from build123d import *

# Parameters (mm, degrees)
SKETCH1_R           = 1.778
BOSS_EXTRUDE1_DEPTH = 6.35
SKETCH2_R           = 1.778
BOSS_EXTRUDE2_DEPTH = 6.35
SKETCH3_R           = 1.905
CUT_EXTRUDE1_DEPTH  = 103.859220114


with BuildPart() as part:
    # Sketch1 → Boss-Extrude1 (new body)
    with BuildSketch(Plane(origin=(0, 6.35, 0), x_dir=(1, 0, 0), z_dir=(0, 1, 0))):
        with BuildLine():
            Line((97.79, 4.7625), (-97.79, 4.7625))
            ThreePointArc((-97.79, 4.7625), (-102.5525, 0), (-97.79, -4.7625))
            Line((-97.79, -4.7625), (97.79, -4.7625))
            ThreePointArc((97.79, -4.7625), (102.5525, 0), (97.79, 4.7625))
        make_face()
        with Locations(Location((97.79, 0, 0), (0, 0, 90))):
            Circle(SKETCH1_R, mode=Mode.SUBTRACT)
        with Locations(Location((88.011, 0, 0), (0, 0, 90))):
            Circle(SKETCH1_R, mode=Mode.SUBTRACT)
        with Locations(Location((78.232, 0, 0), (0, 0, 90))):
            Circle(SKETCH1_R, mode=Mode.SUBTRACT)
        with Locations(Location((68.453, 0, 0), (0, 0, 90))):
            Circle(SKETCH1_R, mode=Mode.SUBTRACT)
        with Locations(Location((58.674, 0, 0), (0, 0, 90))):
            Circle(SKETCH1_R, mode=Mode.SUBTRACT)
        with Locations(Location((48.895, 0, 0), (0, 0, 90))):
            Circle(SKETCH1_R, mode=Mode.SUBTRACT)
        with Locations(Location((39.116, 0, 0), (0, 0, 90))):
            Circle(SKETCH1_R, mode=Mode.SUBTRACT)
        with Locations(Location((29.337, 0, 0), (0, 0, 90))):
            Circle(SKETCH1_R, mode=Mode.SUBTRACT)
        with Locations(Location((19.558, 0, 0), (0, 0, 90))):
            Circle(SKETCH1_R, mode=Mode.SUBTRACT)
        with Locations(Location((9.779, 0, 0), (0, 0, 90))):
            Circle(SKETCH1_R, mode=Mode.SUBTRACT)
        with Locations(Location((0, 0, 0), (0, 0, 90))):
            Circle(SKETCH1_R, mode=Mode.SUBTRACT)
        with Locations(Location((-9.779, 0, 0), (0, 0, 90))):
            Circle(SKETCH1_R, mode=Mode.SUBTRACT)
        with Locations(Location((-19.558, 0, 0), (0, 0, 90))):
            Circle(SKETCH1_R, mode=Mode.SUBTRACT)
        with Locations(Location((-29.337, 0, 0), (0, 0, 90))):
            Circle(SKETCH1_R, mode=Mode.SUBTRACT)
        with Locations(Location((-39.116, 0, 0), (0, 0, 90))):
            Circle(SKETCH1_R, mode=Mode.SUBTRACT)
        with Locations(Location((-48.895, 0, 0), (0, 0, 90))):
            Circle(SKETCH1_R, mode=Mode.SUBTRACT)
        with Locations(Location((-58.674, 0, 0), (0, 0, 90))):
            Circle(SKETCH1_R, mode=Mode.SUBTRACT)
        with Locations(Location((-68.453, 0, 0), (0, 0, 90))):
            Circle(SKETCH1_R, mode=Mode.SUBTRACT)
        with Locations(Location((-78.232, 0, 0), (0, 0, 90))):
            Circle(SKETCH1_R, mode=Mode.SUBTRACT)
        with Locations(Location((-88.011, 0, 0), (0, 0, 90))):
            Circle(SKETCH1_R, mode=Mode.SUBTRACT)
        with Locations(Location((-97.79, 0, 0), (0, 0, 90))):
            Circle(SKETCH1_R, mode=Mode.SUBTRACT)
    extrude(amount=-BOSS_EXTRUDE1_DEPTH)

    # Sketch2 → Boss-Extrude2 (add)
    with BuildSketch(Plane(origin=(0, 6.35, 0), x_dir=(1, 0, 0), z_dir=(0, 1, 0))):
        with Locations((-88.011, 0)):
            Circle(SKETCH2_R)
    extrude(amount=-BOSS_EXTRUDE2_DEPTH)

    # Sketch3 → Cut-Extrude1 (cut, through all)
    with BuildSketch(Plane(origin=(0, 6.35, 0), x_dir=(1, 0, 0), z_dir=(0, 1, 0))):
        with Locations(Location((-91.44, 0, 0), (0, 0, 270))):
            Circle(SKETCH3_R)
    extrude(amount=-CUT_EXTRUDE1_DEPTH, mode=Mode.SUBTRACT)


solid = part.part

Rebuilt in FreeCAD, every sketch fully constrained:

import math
import FreeCAD as App
import Part
import Sketcher
Q = App.Units.Quantity

doc = App.newDocument("Part")
body = doc.addObject("PartDesign::Body", "Body")

sketch1 = body.newObject("Sketcher::SketchObject", "Sketch")
sketch1.AttachmentSupport = (doc.getObject("XZ_Plane"), [""])
sketch1.MapMode = "FlatFace"
sketch1.AttachmentOffset = App.Placement(App.Vector(0, 0, -0.25 * 25.4), App.Rotation())
sketch1.addGeometry([
    Part.LineSegment(App.Vector(97.8, -4.8, 0), App.Vector(-97.8, -4.8, 0)),
    Part.ArcOfCircle(Part.Circle(App.Vector(-97.8, 0, 0), App.Vector(0, 0, 1), 4.8), math.radians(90), math.radians(270)),
    Part.LineSegment(App.Vector(-97.8, 4.8, 0), App.Vector(97.8, 4.8, 0)),
    Part.ArcOfCircle(Part.Circle(App.Vector(97.8, 0, 0), App.Vector(0, 0, 1), 4.8), math.radians(-90), math.radians(90)),
    Part.Circle(App.Vector(-97.8, 0, 0), App.Vector(0, 0, 1), 1.8),
    Part.Circle(App.Vector(-88, 0, 0), App.Vector(0, 0, 1), 1.8),
    Part.Circle(App.Vector(-78.2, 0, 0), App.Vector(0, 0, 1), 1.8),
    Part.Circle(App.Vector(-68.5, 0, 0), App.Vector(0, 0, 1), 1.8),
    Part.Circle(App.Vector(-58.7, 0, 0), App.Vector(0, 0, 1), 1.8),
    Part.Circle(App.Vector(-48.9, 0, 0), App.Vector(0, 0, 1), 1.8),
    Part.Circle(App.Vector(-39.1, 0, 0), App.Vector(0, 0, 1), 1.8),
    Part.Circle(App.Vector(-29.3, 0, 0), App.Vector(0, 0, 1), 1.8),
    Part.Circle(App.Vector(-19.6, 0, 0), App.Vector(0, 0, 1), 1.8),
    Part.Circle(App.Vector(-9.8, 0, 0), App.Vector(0, 0, 1), 1.8),
    Part.Circle(App.Vector(0, 0, 0), App.Vector(0, 0, 1), 1.8),
    Part.Circle(App.Vector(9.8, 0, 0), App.Vector(0, 0, 1), 1.8),
    Part.Circle(App.Vector(19.6, 0, 0), App.Vector(0, 0, 1), 1.8),
    Part.Circle(App.Vector(29.3, 0, 0), App.Vector(0, 0, 1), 1.8),
    Part.Circle(App.Vector(39.1, 0, 0), App.Vector(0, 0, 1), 1.8),
    Part.Circle(App.Vector(48.9, 0, 0), App.Vector(0, 0, 1), 1.8),
    Part.Circle(App.Vector(58.7, 0, 0), App.Vector(0, 0, 1), 1.8),
    Part.Circle(App.Vector(68.5, 0, 0), App.Vector(0, 0, 1), 1.8),
    Part.Circle(App.Vector(78.2, 0, 0), App.Vector(0, 0, 1), 1.8),
    Part.Circle(App.Vector(88, 0, 0), App.Vector(0, 0, 1), 1.8),
    Part.Circle(App.Vector(97.8, 0, 0), App.Vector(0, 0, 1), 1.8),
], False)
sketch1.addConstraint([
    Sketcher.Constraint("Tangent", 0, 2, 1, 2),
    Sketcher.Constraint("Tangent", 1, 1, 2, 1),
    Sketcher.Constraint("Tangent", 2, 2, 3, 2),
    Sketcher.Constraint("Tangent", 3, 1, 0, 1),
    Sketcher.Constraint("Horizontal", 0),
    Sketcher.Constraint("Horizontal", 2),
    Sketcher.Constraint("Coincident", 14, 3, -1, 1),
    Sketcher.Constraint("Coincident", 4, 3, 1, 3),
    Sketcher.Constraint("Coincident", 24, 3, 3, 3),
    Sketcher.Constraint("Equal", 4, 5),
    Sketcher.Constraint("Equal", 5, 6),
    Sketcher.Constraint("Equal", 6, 7),
    Sketcher.Constraint("Equal", 7, 8),
    Sketcher.Constraint("Equal", 8, 9),
    Sketcher.Constraint("Equal", 9, 10),
    Sketcher.Constraint("Equal", 10, 11),
    Sketcher.Constraint("Equal", 11, 12),
    Sketcher.Constraint("Equal", 12, 13),
    Sketcher.Constraint("Equal", 13, 14),
    Sketcher.Constraint("Equal", 14, 15),
    Sketcher.Constraint("Equal", 15, 16),
    Sketcher.Constraint("Equal", 16, 17),
    Sketcher.Constraint("Equal", 17, 18),
    Sketcher.Constraint("Equal", 18, 19),
    Sketcher.Constraint("Equal", 19, 20),
    Sketcher.Constraint("Equal", 20, 21),
    Sketcher.Constraint("Equal", 21, 22),
    Sketcher.Constraint("Equal", 22, 23),
    Sketcher.Constraint("Equal", 23, 24),
    Sketcher.Constraint("Symmetric", 1, 3, 3, 3, -1, 1),
    Sketcher.Constraint("Symmetric", 13, 3, 15, 3, -1, 1),
    Sketcher.Constraint("Symmetric", 12, 3, 16, 3, -1, 1),
    Sketcher.Constraint("Symmetric", 11, 3, 17, 3, -1, 1),
    Sketcher.Constraint("Symmetric", 10, 3, 18, 3, -1, 1),
    Sketcher.Constraint("Symmetric", 9, 3, 19, 3, -1, 1),
    Sketcher.Constraint("Symmetric", 8, 3, 20, 3, -1, 1),
    Sketcher.Constraint("Symmetric", 7, 3, 21, 3, -1, 1),
    Sketcher.Constraint("Symmetric", 6, 3, 22, 3, -1, 1),
    Sketcher.Constraint("Symmetric", 5, 3, 23, 3, -1, 1),
    Sketcher.Constraint("PointOnObject", 5, 3, -1),
    Sketcher.Constraint("PointOnObject", 6, 3, -1),
    Sketcher.Constraint("PointOnObject", 7, 3, -1),
    Sketcher.Constraint("PointOnObject", 8, 3, -1),
    Sketcher.Constraint("PointOnObject", 9, 3, -1),
    Sketcher.Constraint("PointOnObject", 10, 3, -1),
    Sketcher.Constraint("PointOnObject", 11, 3, -1),
    Sketcher.Constraint("PointOnObject", 12, 3, -1),
    Sketcher.Constraint("PointOnObject", 13, 3, -1),
    Sketcher.Constraint("Diameter", 4, Q("0.14 in")),
    Sketcher.Constraint("DistanceX", 0, 2, 0, 1, Q("7.7 in")),
    Sketcher.Constraint("Radius", 1, Q("0.1875 in")),
    Sketcher.Constraint("DistanceX", 6, 3, -1, 1, Q("3.08 in")),
    Sketcher.Constraint("DistanceX", 8, 3, -1, 1, Q("2.31 in")),
    Sketcher.Constraint("DistanceX", 10, 3, -1, 1, Q("1.54 in")),
    Sketcher.Constraint("DistanceX", 12, 3, -1, 1, Q("0.77 in")),
    Sketcher.Constraint("DistanceX", 5, 3, 7, 3, Q("0.77 in")),
    Sketcher.Constraint("DistanceX", 7, 3, 9, 3, Q("0.77 in")),
    Sketcher.Constraint("DistanceX", 9, 3, 11, 3, Q("0.77 in")),
    Sketcher.Constraint("DistanceX", 11, 3, 13, 3, Q("0.77 in")),
    Sketcher.Constraint("DistanceX", 13, 3, 15, 3, Q("0.77 in")),
])
pad1 = body.newObject("PartDesign::Pad", "Pad")
pad1.Profile = sketch1
pad1.Length = Q("0.25 in")

sketch2 = body.newObject("Sketcher::SketchObject", "Sketch001")
sketch2.AttachmentSupport = (doc.getObject("XZ_Plane"), [""])
sketch2.MapMode = "FlatFace"
sketch2.AttachmentOffset = App.Placement(App.Vector(0, 0, -0.25 * 25.4), App.Rotation())
sketch2.addGeometry(Part.Circle(App.Vector(-88, 0, 0), App.Vector(0, 0, 1), 1.8), False)
sketch2.addConstraint([
    Sketcher.Constraint("PointOnObject", 0, 3, -1),
    Sketcher.Constraint("Diameter", 0, Q("0.14 in")),
    Sketcher.Constraint("DistanceX", 0, 3, -1, 1, Q("3.465 in")),
])
pad2 = body.newObject("PartDesign::Pad", "Pad001")
pad2.Profile = sketch2
pad2.Length = Q("0.25 in")

sketch3 = body.newObject("Sketcher::SketchObject", "Sketch002")
sketch3.AttachmentSupport = (doc.getObject("XZ_Plane"), [""])
sketch3.MapMode = "FlatFace"
sketch3.AttachmentOffset = App.Placement(App.Vector(0, 0, -0.25 * 25.4), App.Rotation())
sketch3.addGeometry(Part.Circle(App.Vector(-91.4, 0, 0), App.Vector(0, 0, 1), 1.9), False)
sketch3.addConstraint([
    Sketcher.Constraint("PointOnObject", 0, 3, -1),
    Sketcher.Constraint("Diameter", 0, Q("0.15 in")),
    Sketcher.Constraint("DistanceX", 0, 3, -1, 1, Q("3.6 in")),
])
pocket1 = body.newObject("PartDesign::Pocket", "Pocket")
pocket1.Profile = sketch3
pocket1.Type = "ThroughAll"
pocket1.Reversed = True

doc.recompute()
